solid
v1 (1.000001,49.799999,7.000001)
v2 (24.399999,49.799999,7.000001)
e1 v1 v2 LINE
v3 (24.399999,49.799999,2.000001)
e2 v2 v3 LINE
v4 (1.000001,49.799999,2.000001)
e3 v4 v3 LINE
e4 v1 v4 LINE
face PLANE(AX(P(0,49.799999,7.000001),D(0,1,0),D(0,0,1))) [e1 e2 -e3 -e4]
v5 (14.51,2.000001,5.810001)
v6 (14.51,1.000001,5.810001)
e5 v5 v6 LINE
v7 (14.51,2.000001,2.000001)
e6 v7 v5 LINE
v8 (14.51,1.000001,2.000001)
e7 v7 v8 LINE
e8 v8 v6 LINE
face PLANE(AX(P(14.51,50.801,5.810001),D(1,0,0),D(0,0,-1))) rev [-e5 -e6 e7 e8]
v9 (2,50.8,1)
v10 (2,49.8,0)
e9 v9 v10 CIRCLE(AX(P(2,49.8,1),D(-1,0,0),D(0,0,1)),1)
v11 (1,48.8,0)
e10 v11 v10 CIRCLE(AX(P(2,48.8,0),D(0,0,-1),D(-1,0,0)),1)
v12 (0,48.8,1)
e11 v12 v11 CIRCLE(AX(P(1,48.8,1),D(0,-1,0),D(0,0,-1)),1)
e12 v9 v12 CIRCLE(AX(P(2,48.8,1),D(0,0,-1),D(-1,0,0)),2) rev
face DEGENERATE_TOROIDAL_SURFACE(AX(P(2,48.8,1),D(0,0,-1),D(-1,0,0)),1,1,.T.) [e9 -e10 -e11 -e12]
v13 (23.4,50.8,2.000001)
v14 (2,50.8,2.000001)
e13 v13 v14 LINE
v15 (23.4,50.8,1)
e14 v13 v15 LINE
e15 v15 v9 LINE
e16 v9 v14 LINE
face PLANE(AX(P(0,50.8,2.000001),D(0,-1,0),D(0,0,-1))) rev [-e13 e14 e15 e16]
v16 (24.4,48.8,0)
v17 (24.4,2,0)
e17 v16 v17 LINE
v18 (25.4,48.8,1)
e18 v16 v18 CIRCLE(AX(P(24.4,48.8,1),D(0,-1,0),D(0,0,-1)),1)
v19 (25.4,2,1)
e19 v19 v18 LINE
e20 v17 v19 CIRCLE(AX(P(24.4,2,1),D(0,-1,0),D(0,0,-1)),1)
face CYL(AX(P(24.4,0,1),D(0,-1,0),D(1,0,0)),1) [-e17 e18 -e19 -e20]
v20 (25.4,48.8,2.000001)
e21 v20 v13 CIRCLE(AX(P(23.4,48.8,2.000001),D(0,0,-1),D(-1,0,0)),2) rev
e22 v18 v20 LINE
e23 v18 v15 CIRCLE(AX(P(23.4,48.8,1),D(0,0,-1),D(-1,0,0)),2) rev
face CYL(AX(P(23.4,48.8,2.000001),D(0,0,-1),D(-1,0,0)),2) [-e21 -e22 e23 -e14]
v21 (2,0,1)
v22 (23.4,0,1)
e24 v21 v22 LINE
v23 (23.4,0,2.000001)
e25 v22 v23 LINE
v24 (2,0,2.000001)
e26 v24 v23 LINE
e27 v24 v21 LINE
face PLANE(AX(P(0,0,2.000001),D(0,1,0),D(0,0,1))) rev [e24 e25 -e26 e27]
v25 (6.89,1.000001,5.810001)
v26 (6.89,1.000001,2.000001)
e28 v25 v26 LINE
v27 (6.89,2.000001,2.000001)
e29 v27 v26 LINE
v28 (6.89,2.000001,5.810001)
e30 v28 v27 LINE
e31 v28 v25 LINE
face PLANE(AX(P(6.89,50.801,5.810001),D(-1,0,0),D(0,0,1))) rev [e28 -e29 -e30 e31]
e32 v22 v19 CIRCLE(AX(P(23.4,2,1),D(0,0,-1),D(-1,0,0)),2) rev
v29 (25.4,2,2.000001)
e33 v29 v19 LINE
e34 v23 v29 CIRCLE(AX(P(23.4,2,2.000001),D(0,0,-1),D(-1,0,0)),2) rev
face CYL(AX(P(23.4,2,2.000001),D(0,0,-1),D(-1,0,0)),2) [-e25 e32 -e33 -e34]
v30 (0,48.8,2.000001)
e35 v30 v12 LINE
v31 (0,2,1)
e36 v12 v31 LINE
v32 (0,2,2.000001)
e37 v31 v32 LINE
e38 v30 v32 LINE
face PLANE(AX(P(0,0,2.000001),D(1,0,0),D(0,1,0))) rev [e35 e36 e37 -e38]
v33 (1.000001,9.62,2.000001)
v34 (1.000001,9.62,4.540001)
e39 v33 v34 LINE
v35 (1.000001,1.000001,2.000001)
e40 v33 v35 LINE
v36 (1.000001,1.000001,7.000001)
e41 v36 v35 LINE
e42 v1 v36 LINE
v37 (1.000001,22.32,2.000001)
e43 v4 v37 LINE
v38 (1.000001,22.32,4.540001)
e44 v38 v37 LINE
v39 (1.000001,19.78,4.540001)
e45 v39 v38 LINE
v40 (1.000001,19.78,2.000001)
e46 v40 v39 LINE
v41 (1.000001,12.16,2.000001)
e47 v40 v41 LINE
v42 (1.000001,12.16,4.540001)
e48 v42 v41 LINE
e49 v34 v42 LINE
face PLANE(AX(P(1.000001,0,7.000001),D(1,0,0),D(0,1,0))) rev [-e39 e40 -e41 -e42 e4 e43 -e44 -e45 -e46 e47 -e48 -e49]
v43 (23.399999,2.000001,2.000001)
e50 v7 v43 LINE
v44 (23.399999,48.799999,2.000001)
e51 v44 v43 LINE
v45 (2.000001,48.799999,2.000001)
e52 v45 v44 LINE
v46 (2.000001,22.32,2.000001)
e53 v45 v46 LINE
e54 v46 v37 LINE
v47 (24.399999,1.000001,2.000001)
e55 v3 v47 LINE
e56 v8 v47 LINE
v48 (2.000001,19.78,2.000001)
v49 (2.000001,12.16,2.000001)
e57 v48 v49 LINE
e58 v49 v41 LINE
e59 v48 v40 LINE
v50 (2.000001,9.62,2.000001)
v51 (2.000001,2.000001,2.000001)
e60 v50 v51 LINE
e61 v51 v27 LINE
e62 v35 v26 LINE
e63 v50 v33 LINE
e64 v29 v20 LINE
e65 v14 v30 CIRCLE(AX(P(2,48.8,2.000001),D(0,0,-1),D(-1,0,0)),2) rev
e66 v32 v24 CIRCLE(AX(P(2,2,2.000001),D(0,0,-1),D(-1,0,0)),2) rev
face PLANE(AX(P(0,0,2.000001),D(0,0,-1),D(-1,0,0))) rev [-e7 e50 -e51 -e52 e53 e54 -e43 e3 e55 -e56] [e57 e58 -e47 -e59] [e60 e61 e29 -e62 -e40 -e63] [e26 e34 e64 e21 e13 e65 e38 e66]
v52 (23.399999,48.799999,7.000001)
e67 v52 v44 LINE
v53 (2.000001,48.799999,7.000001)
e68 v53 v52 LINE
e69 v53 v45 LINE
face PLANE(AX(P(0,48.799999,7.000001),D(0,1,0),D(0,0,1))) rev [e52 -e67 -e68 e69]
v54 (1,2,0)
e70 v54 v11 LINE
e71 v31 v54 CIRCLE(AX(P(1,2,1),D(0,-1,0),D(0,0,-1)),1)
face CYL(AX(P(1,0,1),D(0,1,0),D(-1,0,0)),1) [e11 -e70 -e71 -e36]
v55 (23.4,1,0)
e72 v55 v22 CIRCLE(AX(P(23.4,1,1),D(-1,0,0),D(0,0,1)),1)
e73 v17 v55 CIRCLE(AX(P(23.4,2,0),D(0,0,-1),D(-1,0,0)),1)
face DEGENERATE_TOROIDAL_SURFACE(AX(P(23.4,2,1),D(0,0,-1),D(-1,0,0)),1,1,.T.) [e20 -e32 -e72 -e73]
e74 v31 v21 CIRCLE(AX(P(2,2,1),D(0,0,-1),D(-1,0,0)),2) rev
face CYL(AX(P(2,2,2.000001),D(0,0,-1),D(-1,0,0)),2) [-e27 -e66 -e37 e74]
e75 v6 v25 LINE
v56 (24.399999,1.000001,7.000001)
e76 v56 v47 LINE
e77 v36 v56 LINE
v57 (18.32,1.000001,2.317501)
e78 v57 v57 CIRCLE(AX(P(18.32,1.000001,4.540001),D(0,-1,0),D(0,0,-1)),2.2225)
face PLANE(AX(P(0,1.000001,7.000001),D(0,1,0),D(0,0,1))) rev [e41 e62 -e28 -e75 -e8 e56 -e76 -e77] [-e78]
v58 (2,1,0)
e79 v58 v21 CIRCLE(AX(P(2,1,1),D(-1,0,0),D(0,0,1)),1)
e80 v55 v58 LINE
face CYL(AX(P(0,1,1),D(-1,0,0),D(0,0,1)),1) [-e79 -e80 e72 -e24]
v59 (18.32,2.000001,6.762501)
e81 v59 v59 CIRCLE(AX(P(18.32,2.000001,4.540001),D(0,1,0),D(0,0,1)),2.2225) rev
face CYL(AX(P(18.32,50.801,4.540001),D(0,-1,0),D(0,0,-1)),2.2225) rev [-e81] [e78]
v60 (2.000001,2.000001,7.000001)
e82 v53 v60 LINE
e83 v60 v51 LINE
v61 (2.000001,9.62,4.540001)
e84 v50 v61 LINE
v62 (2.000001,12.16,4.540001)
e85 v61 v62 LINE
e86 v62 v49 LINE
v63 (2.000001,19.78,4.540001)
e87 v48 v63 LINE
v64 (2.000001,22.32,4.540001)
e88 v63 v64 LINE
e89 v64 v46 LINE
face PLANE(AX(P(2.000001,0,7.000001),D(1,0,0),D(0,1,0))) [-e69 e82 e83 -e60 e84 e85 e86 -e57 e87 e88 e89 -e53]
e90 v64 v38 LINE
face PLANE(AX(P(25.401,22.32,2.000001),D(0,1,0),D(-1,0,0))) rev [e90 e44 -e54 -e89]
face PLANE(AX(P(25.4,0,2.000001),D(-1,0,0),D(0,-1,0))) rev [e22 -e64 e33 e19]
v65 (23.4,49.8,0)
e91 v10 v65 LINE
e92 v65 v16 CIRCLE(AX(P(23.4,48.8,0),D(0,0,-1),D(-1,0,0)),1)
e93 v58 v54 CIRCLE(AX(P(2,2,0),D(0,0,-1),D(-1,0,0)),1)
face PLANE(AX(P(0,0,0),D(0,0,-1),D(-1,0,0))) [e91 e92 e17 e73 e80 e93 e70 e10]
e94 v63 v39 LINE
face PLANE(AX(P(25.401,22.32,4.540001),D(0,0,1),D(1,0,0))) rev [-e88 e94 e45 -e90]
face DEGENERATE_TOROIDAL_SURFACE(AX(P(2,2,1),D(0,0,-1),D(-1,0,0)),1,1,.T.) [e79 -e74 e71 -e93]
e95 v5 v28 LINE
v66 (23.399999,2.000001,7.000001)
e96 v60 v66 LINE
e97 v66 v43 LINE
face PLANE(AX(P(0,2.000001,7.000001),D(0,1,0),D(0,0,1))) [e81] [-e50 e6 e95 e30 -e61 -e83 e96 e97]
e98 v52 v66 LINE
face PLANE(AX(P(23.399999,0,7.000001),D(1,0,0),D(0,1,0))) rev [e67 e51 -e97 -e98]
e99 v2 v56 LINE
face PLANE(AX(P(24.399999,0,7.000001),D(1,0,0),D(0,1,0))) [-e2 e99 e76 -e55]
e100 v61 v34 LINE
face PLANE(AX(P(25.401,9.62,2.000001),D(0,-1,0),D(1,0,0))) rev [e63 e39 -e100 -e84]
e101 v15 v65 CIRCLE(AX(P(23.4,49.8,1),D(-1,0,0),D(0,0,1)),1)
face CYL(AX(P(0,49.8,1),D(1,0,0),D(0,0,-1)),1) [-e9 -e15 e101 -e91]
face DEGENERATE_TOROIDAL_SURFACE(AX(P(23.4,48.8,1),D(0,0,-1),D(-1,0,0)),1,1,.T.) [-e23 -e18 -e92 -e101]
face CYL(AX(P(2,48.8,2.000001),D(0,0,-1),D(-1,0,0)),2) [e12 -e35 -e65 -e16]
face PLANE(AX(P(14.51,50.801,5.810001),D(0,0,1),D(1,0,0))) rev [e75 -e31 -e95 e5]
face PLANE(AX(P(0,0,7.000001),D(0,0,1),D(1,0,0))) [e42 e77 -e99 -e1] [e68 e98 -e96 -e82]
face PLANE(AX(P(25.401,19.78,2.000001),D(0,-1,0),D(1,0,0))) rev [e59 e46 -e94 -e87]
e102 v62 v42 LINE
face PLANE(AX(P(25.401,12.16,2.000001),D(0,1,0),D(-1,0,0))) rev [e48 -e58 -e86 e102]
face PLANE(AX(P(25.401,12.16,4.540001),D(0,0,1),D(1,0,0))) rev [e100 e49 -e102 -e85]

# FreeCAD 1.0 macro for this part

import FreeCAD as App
import Part
import Sketcher

V = App.Vector
Q = App.Units.Quantity


def edges_at(feature, points):
    """Names of the edges that pass closest to the given points."""
    edges = feature.Shape.Edges
    near = lambda p: min(range(len(edges)), key=lambda i: edges[i].distToShape(Part.Vertex(*p))[0])
    return sorted({f"Edge{near(p) + 1}" for p in points})

doc = App.newDocument("Part")
body = doc.addObject("PartDesign::Body", "Body")

# Sketch on XY plane
sketch1 = body.newObject("Sketcher::SketchObject", "Sketch")
sketch1.AttachmentSupport = (doc.getObject("XY_Plane"), [""])
sketch1.MapMode = "FlatFace"
sketch1.addGeometry([
    Part.LineSegment(V(0, 51, 0), V(0, 0, 0)),
    Part.LineSegment(V(0, 0, 0), V(25, 0, 0)),
    Part.LineSegment(V(25, 0, 0), V(25, 51, 0)),
    Part.LineSegment(V(25, 51, 0), V(0, 51, 0)),
], False)
sketch1.addConstraint([
    Sketcher.Constraint("Coincident", 0, 2, 1, 1),
    Sketcher.Constraint("Coincident", 1, 2, 2, 1),
    Sketcher.Constraint("Coincident", 2, 2, 3, 1),
    Sketcher.Constraint("Coincident", 3, 2, 0, 1),
    Sketcher.Constraint("Vertical", 0),
    Sketcher.Constraint("Horizontal", 1),
    Sketcher.Constraint("Vertical", 2),
    Sketcher.Constraint("Horizontal", 3),
    Sketcher.Constraint("Coincident", 0, 2, -1, 1),
    Sketcher.Constraint("DistanceX", 1, 1, 1, 2, Q("25.4 mm")),
    Sketcher.Constraint("DistanceY", 0, 2, 0, 1, Q("50.8 mm")),
])
pad1 = body.newObject("PartDesign::Pad", "Pad")
pad1.Profile = sketch1
pad1.Length = 2.000001

# Sketch on XY plane
sketch2 = body.newObject("Sketcher::SketchObject", "Sketch001")
sketch2.AttachmentSupport = (doc.getObject("XY_Plane"), [""])
sketch2.MapMode = "FlatFace"
sketch2.AttachmentOffset = App.Placement(V(0, 0, 2.000001), App.Rotation())
sketch2.addGeometry([
    Part.LineSegment(V(1, 50, 0), V(1, 1, 0)),  # 0
    Part.LineSegment(V(1, 1, 0), V(24, 1, 0)),  # 1
    Part.LineSegment(V(24, 1, 0), V(24, 50, 0)),  # 2
    Part.LineSegment(V(24, 50, 0), V(1, 50, 0)),  # 3
    Part.LineSegment(V(23, 2, 0), V(2, 2, 0)),  # 4
    Part.LineSegment(V(2, 2, 0), V(2, 49, 0)),  # 5
    Part.LineSegment(V(2, 49, 0), V(23, 49, 0)),  # 6
    Part.LineSegment(V(23, 49, 0), V(23, 2, 0)),  # 7
], False)
sketch2.addConstraint([
    Sketcher.Constraint("Coincident", 0, 2, 1, 1),
    Sketcher.Constraint("Coincident", 1, 2, 2, 1),
    Sketcher.Constraint("Coincident", 2, 2, 3, 1),
    Sketcher.Constraint("Coincident", 3, 2, 0, 1),
    Sketcher.Constraint("Coincident", 4, 2, 5, 1),
    Sketcher.Constraint("Coincident", 5, 2, 6, 1),
    Sketcher.Constraint("Coincident", 6, 2, 7, 1),
    Sketcher.Constraint("Coincident", 7, 2, 4, 1),
    Sketcher.Constraint("Vertical", 0),
    Sketcher.Constraint("Horizontal", 1),
    Sketcher.Constraint("Vertical", 2),
    Sketcher.Constraint("Horizontal", 3),
    Sketcher.Constraint("Horizontal", 4),
    Sketcher.Constraint("Vertical", 5),
    Sketcher.Constraint("Horizontal", 6),
    Sketcher.Constraint("Vertical", 7),
    Sketcher.Constraint("DistanceX", 1, 1, 1, 2, Q("23.399999 mm")),
    Sketcher.Constraint("DistanceY", 0, 2, 0, 1, Q("48.799999 mm")),
    Sketcher.Constraint("DistanceX", -1, 1, 0, 2, Q("1.000001 mm")),
    Sketcher.Constraint("DistanceY", -1, 1, 0, 2, Q("1.000001 mm")),
    Sketcher.Constraint("DistanceX", -1, 1, 4, 2, Q("2.000001 mm")),
    Sketcher.Constraint("DistanceY", -1, 1, 4, 2, Q("2.000001 mm")),
    Sketcher.Constraint("DistanceY", 5, 2, 3, 2, Q("1.000001 mm")),
    Sketcher.Constraint("DistanceX", 6, 2, 2, 2, Q("1.000001 mm")),
])
pad2 = body.newObject("PartDesign::Pad", "Pad001")
pad2.Profile = sketch2
pad2.Length = 5
doc.recompute()

fillet = body.newObject("PartDesign::Fillet", "Fillet")
fillet.Base = (pad2, edges_at(pad2, [
    (0, 50.8, 1),
    (25.4, 50.8, 1),
    (25.4, 0, 1),
    (0, 0, 1),
]))
fillet.Radius = 2
doc.recompute()

fillet2 = body.newObject("PartDesign::Fillet", "Fillet001")
fillet2.Base = (fillet, edges_at(fillet, [
    (0, 25.4, 0),
    (12.7, 50.8, 0),
    (25.4, 25.4, 0),
    (12.7, 0, 0),
    (24.814, 50.214, 0),
    (24.814, 0.586, 0),
    (0.586, 0.586, 0),
    (0.586, 50.214, 0),
]))
fillet2.Radius = 1

# Sketch on XZ plane
sketch3 = body.newObject("Sketcher::SketchObject", "Sketch002")
sketch3.AttachmentSupport = (doc.getObject("XZ_Plane"), [""])
sketch3.MapMode = "FlatFace"
sketch3.AttachmentOffset = App.Placement(V(0, 0, -1.000001), App.Rotation())
sketch3.addGeometry(Part.Circle(V(18.3, 4.5, 0), V(0, 0, 1), 2.2), False)
sketch3.addConstraint([
    Sketcher.Constraint("Diameter", 0, Q("4.445 mm")),
    Sketcher.Constraint("DistanceX", -1, 1, 0, 3, Q("18.32 mm")),
    Sketcher.Constraint("DistanceY", -1, 1, 0, 3, Q("4.540001 mm")),
])
pocket1 = body.newObject("PartDesign::Pocket", "Pocket")
pocket1.Profile = sketch3
pocket1.Type = "UpToFirst"

# Sketch on XZ plane
sketch4 = body.newObject("Sketcher::SketchObject", "Sketch003")
sketch4.AttachmentSupport = (doc.getObject("XZ_Plane"), [""])
sketch4.MapMode = "FlatFace"
sketch4.AttachmentOffset = App.Placement(V(0, 0, -1.000001), App.Rotation())
sketch4.addGeometry([
    Part.LineSegment(V(6.9, 5.8, 0), V(6.9, 2, 0)),
    Part.LineSegment(V(6.9, 2, 0), V(14.5, 2, 0)),
    Part.LineSegment(V(14.5, 2, 0), V(14.5, 5.8, 0)),
    Part.LineSegment(V(14.5, 5.8, 0), V(6.9, 5.8, 0)),
], False)
sketch4.addConstraint([
    Sketcher.Constraint("Coincident", 0, 2, 1, 1),
    Sketcher.Constraint("Coincident", 1, 2, 2, 1),
    Sketcher.Constraint("Coincident", 2, 2, 3, 1),
    Sketcher.Constraint("Coincident", 3, 2, 0, 1),
    Sketcher.Constraint("Vertical", 0),
    Sketcher.Constraint("Horizontal", 1),
    Sketcher.Constraint("Vertical", 2),
    Sketcher.Constraint("Horizontal", 3),
    Sketcher.Constraint("DistanceY", -1, 1, 0, 2, Q("2.000001 mm")),
    Sketcher.Constraint("DistanceX", 1, 1, 1, 2, Q("7.62 mm")),
    Sketcher.Constraint("DistanceY", 0, 2, 0, 1, Q("3.81 mm")),
    Sketcher.Constraint("DistanceX", -1, 1, 0, 2, Q("6.89 mm")),
])
pocket2 = body.newObject("PartDesign::Pocket", "Pocket001")
pocket2.Profile = sketch4
pocket2.Type = "UpToFirst"

# Sketch on YZ plane
sketch5 = body.newObject("Sketcher::SketchObject", "Sketch004")
sketch5.AttachmentSupport = (doc.getObject("YZ_Plane"), [""])
sketch5.MapMode = "FlatFace"
sketch5.AttachmentOffset = App.Placement(V(0, 0, 1.000001), App.Rotation())
sketch5.addGeometry([
    Part.LineSegment(V(12.2, 2, 0), V(9.6, 2, 0)),
    Part.LineSegment(V(9.6, 2, 0), V(9.6, 4.5, 0)),
    Part.LineSegment(V(9.6, 4.5, 0), V(12.2, 4.5, 0)),
    Part.LineSegment(V(12.2, 4.5, 0), V(12.2, 2, 0)),
], False)
sketch5.addConstraint([
    Sketcher.Constraint("Coincident", 0, 2, 1, 1),
    Sketcher.Constraint("Coincident", 1, 2, 2, 1),
    Sketcher.Constraint("Coincident", 2, 2, 3, 1),
    Sketcher.Constraint("Coincident", 3, 2, 0, 1),
    Sketcher.Constraint("Horizontal", 0),
    Sketcher.Constraint("Vertical", 1),
    Sketcher.Constraint("Horizontal", 2),
    Sketcher.Constraint("Vertical", 3),
    Sketcher.Constraint("Equal", 2, 1),
    Sketcher.Constraint("DistanceY", -1, 1, 0, 2, Q("2.000001 mm")),
    Sketcher.Constraint("DistanceX", 0, 2, 0, 1, Q("2.54 mm")),
    Sketcher.Constraint("DistanceX", -1, 1, 0, 2, Q("9.62 mm")),
])
pocket3 = body.newObject("PartDesign::Pocket", "Pocket002")
pocket3.Profile = sketch5
pocket3.Type = "UpToFirst"
pocket3.Reversed = True

# Sketch on YZ plane
sketch6 = body.newObject("Sketcher::SketchObject", "Sketch005")
sketch6.AttachmentSupport = (doc.getObject("YZ_Plane"), [""])
sketch6.MapMode = "FlatFace"
sketch6.AttachmentOffset = App.Placement(V(0, 0, 1.000001), App.Rotation())
sketch6.addGeometry([
    Part.LineSegment(V(22.3, 2, 0), V(19.8, 2, 0)),
    Part.LineSegment(V(19.8, 2, 0), V(19.8, 4.5, 0)),
    Part.LineSegment(V(19.8, 4.5, 0), V(22.3, 4.5, 0)),
    Part.LineSegment(V(22.3, 4.5, 0), V(22.3, 2, 0)),
], False)
sketch6.addConstraint([
    Sketcher.Constraint("Coincident", 0, 2, 1, 1),
    Sketcher.Constraint("Coincident", 1, 2, 2, 1),
    Sketcher.Constraint("Coincident", 2, 2, 3, 1),
    Sketcher.Constraint("Coincident", 3, 2, 0, 1),
    Sketcher.Constraint("Horizontal", 0),
    Sketcher.Constraint("Vertical", 1),
    Sketcher.Constraint("Horizontal", 2),
    Sketcher.Constraint("Vertical", 3),
    Sketcher.Constraint("Equal", 2, 1),
    Sketcher.Constraint("DistanceY", -1, 1, 0, 2, Q("2.000001 mm")),
    Sketcher.Constraint("DistanceX", 0, 2, 0, 1, Q("2.54 mm")),
    Sketcher.Constraint("DistanceX", -1, 1, 0, 2, Q("19.78 mm")),
])
pocket4 = body.newObject("PartDesign::Pocket", "Pocket003")
pocket4.Profile = sketch6
pocket4.Type = "UpToFirst"
pocket4.Reversed = True

doc.recompute()
